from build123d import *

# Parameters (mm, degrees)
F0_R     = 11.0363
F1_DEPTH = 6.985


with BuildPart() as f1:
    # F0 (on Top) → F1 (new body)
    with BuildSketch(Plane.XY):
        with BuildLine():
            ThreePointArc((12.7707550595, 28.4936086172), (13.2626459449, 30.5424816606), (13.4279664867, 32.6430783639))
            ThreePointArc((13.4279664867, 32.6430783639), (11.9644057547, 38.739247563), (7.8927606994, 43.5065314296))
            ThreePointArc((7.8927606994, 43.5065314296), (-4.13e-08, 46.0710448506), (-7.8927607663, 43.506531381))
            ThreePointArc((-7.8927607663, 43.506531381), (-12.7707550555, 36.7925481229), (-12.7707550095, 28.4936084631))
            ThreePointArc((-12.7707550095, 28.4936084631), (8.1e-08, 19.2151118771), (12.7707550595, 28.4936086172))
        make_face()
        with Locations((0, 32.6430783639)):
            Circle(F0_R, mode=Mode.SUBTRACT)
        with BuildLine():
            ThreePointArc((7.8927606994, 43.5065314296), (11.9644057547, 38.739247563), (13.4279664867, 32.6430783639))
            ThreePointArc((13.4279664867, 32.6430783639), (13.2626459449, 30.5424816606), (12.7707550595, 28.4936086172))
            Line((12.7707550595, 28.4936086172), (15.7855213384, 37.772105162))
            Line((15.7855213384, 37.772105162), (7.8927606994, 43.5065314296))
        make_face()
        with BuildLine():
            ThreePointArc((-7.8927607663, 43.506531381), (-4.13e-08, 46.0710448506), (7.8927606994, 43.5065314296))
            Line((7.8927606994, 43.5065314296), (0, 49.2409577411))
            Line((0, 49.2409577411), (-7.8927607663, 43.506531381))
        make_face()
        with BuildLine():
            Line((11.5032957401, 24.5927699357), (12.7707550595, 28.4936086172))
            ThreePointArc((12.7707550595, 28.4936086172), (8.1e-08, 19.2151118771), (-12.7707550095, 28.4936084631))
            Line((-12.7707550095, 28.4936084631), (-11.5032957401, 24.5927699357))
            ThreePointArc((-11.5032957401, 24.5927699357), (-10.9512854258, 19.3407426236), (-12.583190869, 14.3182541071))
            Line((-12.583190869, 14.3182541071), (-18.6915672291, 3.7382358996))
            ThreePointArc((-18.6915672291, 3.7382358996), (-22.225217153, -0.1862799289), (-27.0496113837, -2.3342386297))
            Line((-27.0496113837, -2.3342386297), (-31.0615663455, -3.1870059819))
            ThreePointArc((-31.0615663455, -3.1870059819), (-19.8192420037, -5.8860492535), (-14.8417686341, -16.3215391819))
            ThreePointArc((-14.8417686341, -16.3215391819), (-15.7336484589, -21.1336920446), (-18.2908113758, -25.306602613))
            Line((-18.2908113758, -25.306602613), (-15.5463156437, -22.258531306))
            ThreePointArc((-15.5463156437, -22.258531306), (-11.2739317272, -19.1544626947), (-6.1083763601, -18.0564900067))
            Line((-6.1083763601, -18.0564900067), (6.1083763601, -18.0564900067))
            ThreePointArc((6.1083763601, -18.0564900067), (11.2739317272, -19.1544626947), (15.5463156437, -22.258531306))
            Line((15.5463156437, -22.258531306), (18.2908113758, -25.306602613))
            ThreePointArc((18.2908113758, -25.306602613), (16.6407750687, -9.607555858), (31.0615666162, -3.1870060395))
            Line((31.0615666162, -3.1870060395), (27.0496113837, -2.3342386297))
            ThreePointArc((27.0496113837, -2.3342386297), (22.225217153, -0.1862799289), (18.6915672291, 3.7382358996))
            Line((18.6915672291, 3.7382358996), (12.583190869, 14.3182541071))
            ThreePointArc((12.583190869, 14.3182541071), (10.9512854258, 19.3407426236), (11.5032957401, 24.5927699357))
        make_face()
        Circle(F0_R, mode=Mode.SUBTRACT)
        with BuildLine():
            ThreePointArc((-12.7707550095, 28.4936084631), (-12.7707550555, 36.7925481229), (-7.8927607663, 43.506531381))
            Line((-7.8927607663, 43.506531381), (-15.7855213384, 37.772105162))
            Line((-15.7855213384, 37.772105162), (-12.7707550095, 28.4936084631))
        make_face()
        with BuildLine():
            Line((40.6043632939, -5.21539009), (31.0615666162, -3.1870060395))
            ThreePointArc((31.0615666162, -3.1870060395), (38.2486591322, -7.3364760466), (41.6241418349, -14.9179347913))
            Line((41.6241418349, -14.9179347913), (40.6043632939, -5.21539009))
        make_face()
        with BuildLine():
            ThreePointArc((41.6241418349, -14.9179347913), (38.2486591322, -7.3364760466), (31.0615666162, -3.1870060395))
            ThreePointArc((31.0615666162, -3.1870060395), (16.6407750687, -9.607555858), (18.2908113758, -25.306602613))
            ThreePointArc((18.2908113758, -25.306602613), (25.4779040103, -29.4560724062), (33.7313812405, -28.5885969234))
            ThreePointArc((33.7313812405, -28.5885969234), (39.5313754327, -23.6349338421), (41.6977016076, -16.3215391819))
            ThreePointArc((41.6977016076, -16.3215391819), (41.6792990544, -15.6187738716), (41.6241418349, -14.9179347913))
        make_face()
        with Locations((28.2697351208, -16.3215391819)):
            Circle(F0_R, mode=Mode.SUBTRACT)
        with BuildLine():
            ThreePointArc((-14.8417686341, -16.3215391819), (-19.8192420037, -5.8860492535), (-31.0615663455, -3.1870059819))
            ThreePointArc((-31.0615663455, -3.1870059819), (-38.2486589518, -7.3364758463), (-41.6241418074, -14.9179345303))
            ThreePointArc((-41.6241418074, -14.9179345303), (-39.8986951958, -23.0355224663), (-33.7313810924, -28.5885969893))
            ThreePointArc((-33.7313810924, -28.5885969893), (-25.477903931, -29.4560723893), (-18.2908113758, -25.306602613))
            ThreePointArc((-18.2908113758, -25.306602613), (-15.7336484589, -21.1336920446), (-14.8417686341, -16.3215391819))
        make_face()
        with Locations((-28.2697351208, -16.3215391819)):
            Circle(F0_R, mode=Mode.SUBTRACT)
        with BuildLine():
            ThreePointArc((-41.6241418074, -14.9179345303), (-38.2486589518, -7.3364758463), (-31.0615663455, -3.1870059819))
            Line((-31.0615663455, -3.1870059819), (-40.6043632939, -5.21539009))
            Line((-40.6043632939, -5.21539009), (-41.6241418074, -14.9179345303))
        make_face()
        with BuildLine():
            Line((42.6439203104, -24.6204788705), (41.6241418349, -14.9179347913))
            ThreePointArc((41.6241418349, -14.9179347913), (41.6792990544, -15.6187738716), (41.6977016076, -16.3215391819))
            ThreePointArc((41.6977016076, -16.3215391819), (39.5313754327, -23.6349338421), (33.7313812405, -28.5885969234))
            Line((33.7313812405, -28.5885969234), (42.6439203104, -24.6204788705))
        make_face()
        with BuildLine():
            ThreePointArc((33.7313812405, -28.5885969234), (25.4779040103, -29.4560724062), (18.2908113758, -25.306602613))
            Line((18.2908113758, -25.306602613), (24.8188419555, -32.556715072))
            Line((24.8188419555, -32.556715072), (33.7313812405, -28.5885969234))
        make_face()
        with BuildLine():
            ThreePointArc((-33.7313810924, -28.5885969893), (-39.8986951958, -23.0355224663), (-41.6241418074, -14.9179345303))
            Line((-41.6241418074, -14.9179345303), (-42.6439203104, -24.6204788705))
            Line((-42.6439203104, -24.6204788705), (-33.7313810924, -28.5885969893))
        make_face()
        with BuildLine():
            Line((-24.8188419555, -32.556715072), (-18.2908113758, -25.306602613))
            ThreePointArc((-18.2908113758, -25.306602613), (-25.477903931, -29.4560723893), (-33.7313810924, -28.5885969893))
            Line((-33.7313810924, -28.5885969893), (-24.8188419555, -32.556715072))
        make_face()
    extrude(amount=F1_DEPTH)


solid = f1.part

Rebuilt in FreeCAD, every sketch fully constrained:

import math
import FreeCAD as App
import Part
import Sketcher
Q = App.Units.Quantity

doc = App.newDocument("Part")
body = doc.addObject("PartDesign::Body", "Body")

# Sketch on XY plane
sketch1 = doc.addObject("Sketcher::SketchObject", "Sketch")
body.addObject(sketch1)
sketch1.AttachmentSupport = (doc.XY_Plane, [""])
sketch1.MapMode = "FlatFace"
sketch1.addGeometry([
    Part.LineSegment(App.Vector(12.8, 28.5, 0), App.Vector(15.8, 37.8, 0)),  # 0
    Part.LineSegment(App.Vector(15.8, 37.8, 0), App.Vector(7.9, 43.5, 0)),  # 1
    Part.LineSegment(App.Vector(7.9, 43.5, 0), App.Vector(0, 49.2, 0)),  # 2
    Part.LineSegment(App.Vector(0, 49.2, 0), App.Vector(-15.8, 37.8, 0)),  # 3
    Part.LineSegment(App.Vector(-15.8, 37.8, 0), App.Vector(-12.8, 28.5, 0)),  # 4
    Part.LineSegment(App.Vector(-12.8, 28.5, 0), App.Vector(-11.5, 24.6, 0)),  # 5
    Part.ArcOfCircle(Part.Circle(App.Vector(-23.6, 20.7, 0), App.Vector(0, 0, 1), 12.7), math.radians(-30), math.radians(18)),  # 6
    Part.LineSegment(App.Vector(-12.6, 14.3, 0), App.Vector(-18.7, 3.7, 0)),  # 7
    Part.ArcOfCircle(Part.Circle(App.Vector(-29.7, 10.1, 0), App.Vector(0, 0, 1), 12.7), math.radians(-78), math.radians(-30)),  # 8
    Part.LineSegment(App.Vector(-27, -2.3, 0), App.Vector(-31.1, -3.2, 0)),  # 9
    Part.LineSegment(App.Vector(-31.1, -3.2, 0), App.Vector(-40.6, -5.2, 0)),  # 10
    Part.LineSegment(App.Vector(-40.6, -5.2, 0), App.Vector(-41.6, -14.9, 0)),  # 11
    Part.LineSegment(App.Vector(-41.6, -14.9, 0), App.Vector(-42.6, -24.6, 0)),  # 12
    Part.LineSegment(App.Vector(-42.6, -24.6, 0), App.Vector(-24.8, -32.6, 0)),  # 13
    Part.LineSegment(App.Vector(-24.8, -32.6, 0), App.Vector(-18.3, -25.3, 0)),  # 14
    Part.LineSegment(App.Vector(-18.3, -25.3, 0), App.Vector(-15.5, -22.3, 0)),  # 15
    Part.ArcOfCircle(Part.Circle(App.Vector(-6.1, -30.8, 0), App.Vector(0, 0, 1), 12.7), math.radians(90), math.radians(138)),  # 16
    Part.LineSegment(App.Vector(-6.1, -18.1, 0), App.Vector(6.1, -18.1, 0)),  # 17
    Part.ArcOfCircle(Part.Circle(App.Vector(6.1, -30.8, 0), App.Vector(0, 0, 1), 12.7), math.radians(42), math.radians(90)),  # 18
    Part.LineSegment(App.Vector(15.5, -22.3, 0), App.Vector(18.3, -25.3, 0)),  # 19
    Part.LineSegment(App.Vector(18.3, -25.3, 0), App.Vector(24.8, -32.6, 0)),  # 20
    Part.LineSegment(App.Vector(24.8, -32.6, 0), App.Vector(33.7, -28.6, 0)),  # 21
    Part.LineSegment(App.Vector(33.7, -28.6, 0), App.Vector(42.6, -24.6, 0)),  # 22
    Part.LineSegment(App.Vector(42.6, -24.6, 0), App.Vector(41.6, -14.9, 0)),  # 23
    Part.LineSegment(App.Vector(41.6, -14.9, 0), App.Vector(40.6, -5.2, 0)),  # 24
    Part.LineSegment(App.Vector(40.6, -5.2, 0), App.Vector(31.1, -3.2, 0)),  # 25
    Part.LineSegment(App.Vector(31.1, -3.2, 0), App.Vector(27, -2.3, 0)),  # 26
    Part.ArcOfCircle(Part.Circle(App.Vector(29.7, 10.1, 0), App.Vector(0, 0, 1), 12.7), math.radians(-150), math.radians(-102)),  # 27
    Part.LineSegment(App.Vector(18.7, 3.7, 0), App.Vector(12.6, 14.3, 0)),  # 28
    Part.ArcOfCircle(Part.Circle(App.Vector(23.6, 20.7, 0), App.Vector(0, 0, 1), 12.7), math.radians(162), math.radians(210)),  # 29
    Part.LineSegment(App.Vector(11.5, 24.6, 0), App.Vector(12.8, 28.5, 0)),  # 30
    Part.Circle(App.Vector(-28.3, -16.3, 0), App.Vector(0, 0, 1), 11),  # 31
    Part.Circle(App.Vector(28.3, -16.3, 0), App.Vector(0, 0, 1), 11),  # 32
    Part.Circle(App.Vector(0, 0, 0), App.Vector(0, 0, 1), 11),  # 33
    Part.Circle(App.Vector(0, 32.6, 0), App.Vector(0, 0, 1), 11),  # 34
], False)
sketch1.addConstraint([
    Sketcher.Constraint("Coincident", 0, 2, 1, 1),
    Sketcher.Constraint("Coincident", 1, 2, 2, 1),
    Sketcher.Constraint("Coincident", 2, 2, 3, 1),
    Sketcher.Constraint("Coincident", 3, 2, 4, 1),
    Sketcher.Constraint("Coincident", 4, 2, 5, 1),
    Sketcher.Constraint("Tangent", 5, 2, 6, 2),
    Sketcher.Constraint("Tangent", 6, 1, 7, 1),
    Sketcher.Constraint("Tangent", 7, 2, 8, 2),
    Sketcher.Constraint("Tangent", 8, 1, 9, 1),
    Sketcher.Constraint("Coincident", 9, 2, 10, 1),
    Sketcher.Constraint("Coincident", 10, 2, 11, 1),
    Sketcher.Constraint("Coincident", 11, 2, 12, 1),
    Sketcher.Constraint("Coincident", 12, 2, 13, 1),
    Sketcher.Constraint("Coincident", 13, 2, 14, 1),
    Sketcher.Constraint("Coincident", 14, 2, 15, 1),
    Sketcher.Constraint("Tangent", 15, 2, 16, 2),
    Sketcher.Constraint("Tangent", 16, 1, 17, 1),
    Sketcher.Constraint("Tangent", 17, 2, 18, 2),
    Sketcher.Constraint("Tangent", 18, 1, 19, 1),
    Sketcher.Constraint("Coincident", 19, 2, 20, 1),
    Sketcher.Constraint("Coincident", 20, 2, 21, 1),
    Sketcher.Constraint("Coincident", 21, 2, 22, 1),
    Sketcher.Constraint("Coincident", 22, 2, 23, 1),
    Sketcher.Constraint("Coincident", 23, 2, 24, 1),
    Sketcher.Constraint("Coincident", 24, 2, 25, 1),
    Sketcher.Constraint("Coincident", 25, 2, 26, 1),
    Sketcher.Constraint("Tangent", 26, 2, 27, 2),
    Sketcher.Constraint("Tangent", 27, 1, 28, 1),
    Sketcher.Constraint("Tangent", 28, 2, 29, 2),
    Sketcher.Constraint("Tangent", 29, 1, 30, 1),
    Sketcher.Constraint("Coincident", 30, 2, 0, 1),
    Sketcher.Constraint("Horizontal", 17),
    Sketcher.Constraint("Coincident", 33, 3, -1, 1),
    Sketcher.Constraint("Equal", 6, 8),
    Sketcher.Constraint("Equal", 8, 16),
    Sketcher.Constraint("Equal", 16, 18),
    Sketcher.Constraint("Equal", 18, 27),
    Sketcher.Constraint("Equal", 27, 29),
    Sketcher.Constraint("Equal", 31, 32),
    Sketcher.Constraint("Equal", 32, 33),
    Sketcher.Constraint("Equal", 33, 34),
    Sketcher.Constraint("Symmetric", 8, 3, 27, 3, -2),
    Sketcher.Constraint("Symmetric", 6, 3, 29, 3, -2),
    Sketcher.Constraint("Symmetric", 31, 3, 32, 3, -2),
    Sketcher.Constraint("Symmetric", 0, 2, 3, 2, -2),
    Sketcher.Constraint("Symmetric", 15, 2, 18, 1, -2),
    Sketcher.Constraint("Symmetric", 13, 2, 20, 2, -2),
    Sketcher.Constraint("Symmetric", 12, 2, 22, 2, -2),
    Sketcher.Constraint("Symmetric", 11, 2, 23, 2, -2),
    Sketcher.Constraint("Symmetric", 10, 2, 24, 2, -2),
    Sketcher.Constraint("Symmetric", 9, 2, 25, 2, -2),
    Sketcher.Constraint("Symmetric", 4, 2, 30, 2, -2),
    Sketcher.Constraint("PointOnObject", 34, 3, -2),
    Sketcher.Constraint("PointOnObject", 2, 2, -2),
    Sketcher.Constraint("Parallel", 1, 2),
    Sketcher.Constraint("Parallel", 4, 5),
    Sketcher.Constraint("Parallel", 9, 10),
    Sketcher.Constraint("Parallel", 11, 12),
    Sketcher.Constraint("Parallel", 14, 15),
    Sketcher.Constraint("Parallel", 21, 22),
    Sketcher.Constraint("Horizontal", 14, 2, 19, 2),
    Sketcher.Constraint("Equal", 0, 1),
    Sketcher.Constraint("Equal", 1, 2),
    Sketcher.Constraint("Equal", 5, 9),
    Sketcher.Constraint("Equal", 4, 10),
    Sketcher.Constraint("Equal", 10, 11),
    Sketcher.Constraint("Equal", 11, 12),
    Sketcher.Constraint("Equal", 3, 13),
    Sketcher.Constraint("Equal", 12, 14),
    Sketcher.Constraint("Equal", 9, 15),
    Sketcher.Constraint("Equal", 20, 21),
    Sketcher.Constraint("Radius", 6, Q("0.5 in")),
    Sketcher.Constraint("Diameter", 31, Q("0.869 in")),
    Sketcher.Constraint("Angle", 0, Q("72 deg")),
    Sketcher.Constraint("Angle", 1, Q("144 deg")),
    Sketcher.Constraint("Angle", 7, Q("-120 deg")),
    Sketcher.Constraint("Angle", 9, Q("-168 deg")),
    Sketcher.Constraint("Angle", 11, Q("-96 deg")),
    Sketcher.Constraint("Angle", 13, Q("-24 deg")),
    Sketcher.Constraint("Angle", 14, Q("48 deg")),
    Sketcher.Constraint("DistanceX", 4, 2, 5, 2, Q("0.0499 in")),
    Sketcher.Constraint("DistanceX", 8, 3, 6, 1, Q("0.6735 in")),
    Sketcher.Constraint("DistanceY", 31, 3, 8, 1, 13.987301),
    Sketcher.Constraint("DistanceX", 11, 2, 13, 2, 16.8053),
    Sketcher.Constraint("DistanceY", 16, 3, -1, 1, 30.75649),
    Sketcher.Constraint("DistanceY", -1, 1, 34, 3, 32.643078),
    Sketcher.Constraint("DistanceX", 31, 3, 16, 3, 22.161359),
])
pad1 = doc.addObject("PartDesign::Pad", "Pad")
body.addObject(pad1)
pad1.Profile = sketch1
pad1.Length = Q("0.275 in")

doc.recompute()
